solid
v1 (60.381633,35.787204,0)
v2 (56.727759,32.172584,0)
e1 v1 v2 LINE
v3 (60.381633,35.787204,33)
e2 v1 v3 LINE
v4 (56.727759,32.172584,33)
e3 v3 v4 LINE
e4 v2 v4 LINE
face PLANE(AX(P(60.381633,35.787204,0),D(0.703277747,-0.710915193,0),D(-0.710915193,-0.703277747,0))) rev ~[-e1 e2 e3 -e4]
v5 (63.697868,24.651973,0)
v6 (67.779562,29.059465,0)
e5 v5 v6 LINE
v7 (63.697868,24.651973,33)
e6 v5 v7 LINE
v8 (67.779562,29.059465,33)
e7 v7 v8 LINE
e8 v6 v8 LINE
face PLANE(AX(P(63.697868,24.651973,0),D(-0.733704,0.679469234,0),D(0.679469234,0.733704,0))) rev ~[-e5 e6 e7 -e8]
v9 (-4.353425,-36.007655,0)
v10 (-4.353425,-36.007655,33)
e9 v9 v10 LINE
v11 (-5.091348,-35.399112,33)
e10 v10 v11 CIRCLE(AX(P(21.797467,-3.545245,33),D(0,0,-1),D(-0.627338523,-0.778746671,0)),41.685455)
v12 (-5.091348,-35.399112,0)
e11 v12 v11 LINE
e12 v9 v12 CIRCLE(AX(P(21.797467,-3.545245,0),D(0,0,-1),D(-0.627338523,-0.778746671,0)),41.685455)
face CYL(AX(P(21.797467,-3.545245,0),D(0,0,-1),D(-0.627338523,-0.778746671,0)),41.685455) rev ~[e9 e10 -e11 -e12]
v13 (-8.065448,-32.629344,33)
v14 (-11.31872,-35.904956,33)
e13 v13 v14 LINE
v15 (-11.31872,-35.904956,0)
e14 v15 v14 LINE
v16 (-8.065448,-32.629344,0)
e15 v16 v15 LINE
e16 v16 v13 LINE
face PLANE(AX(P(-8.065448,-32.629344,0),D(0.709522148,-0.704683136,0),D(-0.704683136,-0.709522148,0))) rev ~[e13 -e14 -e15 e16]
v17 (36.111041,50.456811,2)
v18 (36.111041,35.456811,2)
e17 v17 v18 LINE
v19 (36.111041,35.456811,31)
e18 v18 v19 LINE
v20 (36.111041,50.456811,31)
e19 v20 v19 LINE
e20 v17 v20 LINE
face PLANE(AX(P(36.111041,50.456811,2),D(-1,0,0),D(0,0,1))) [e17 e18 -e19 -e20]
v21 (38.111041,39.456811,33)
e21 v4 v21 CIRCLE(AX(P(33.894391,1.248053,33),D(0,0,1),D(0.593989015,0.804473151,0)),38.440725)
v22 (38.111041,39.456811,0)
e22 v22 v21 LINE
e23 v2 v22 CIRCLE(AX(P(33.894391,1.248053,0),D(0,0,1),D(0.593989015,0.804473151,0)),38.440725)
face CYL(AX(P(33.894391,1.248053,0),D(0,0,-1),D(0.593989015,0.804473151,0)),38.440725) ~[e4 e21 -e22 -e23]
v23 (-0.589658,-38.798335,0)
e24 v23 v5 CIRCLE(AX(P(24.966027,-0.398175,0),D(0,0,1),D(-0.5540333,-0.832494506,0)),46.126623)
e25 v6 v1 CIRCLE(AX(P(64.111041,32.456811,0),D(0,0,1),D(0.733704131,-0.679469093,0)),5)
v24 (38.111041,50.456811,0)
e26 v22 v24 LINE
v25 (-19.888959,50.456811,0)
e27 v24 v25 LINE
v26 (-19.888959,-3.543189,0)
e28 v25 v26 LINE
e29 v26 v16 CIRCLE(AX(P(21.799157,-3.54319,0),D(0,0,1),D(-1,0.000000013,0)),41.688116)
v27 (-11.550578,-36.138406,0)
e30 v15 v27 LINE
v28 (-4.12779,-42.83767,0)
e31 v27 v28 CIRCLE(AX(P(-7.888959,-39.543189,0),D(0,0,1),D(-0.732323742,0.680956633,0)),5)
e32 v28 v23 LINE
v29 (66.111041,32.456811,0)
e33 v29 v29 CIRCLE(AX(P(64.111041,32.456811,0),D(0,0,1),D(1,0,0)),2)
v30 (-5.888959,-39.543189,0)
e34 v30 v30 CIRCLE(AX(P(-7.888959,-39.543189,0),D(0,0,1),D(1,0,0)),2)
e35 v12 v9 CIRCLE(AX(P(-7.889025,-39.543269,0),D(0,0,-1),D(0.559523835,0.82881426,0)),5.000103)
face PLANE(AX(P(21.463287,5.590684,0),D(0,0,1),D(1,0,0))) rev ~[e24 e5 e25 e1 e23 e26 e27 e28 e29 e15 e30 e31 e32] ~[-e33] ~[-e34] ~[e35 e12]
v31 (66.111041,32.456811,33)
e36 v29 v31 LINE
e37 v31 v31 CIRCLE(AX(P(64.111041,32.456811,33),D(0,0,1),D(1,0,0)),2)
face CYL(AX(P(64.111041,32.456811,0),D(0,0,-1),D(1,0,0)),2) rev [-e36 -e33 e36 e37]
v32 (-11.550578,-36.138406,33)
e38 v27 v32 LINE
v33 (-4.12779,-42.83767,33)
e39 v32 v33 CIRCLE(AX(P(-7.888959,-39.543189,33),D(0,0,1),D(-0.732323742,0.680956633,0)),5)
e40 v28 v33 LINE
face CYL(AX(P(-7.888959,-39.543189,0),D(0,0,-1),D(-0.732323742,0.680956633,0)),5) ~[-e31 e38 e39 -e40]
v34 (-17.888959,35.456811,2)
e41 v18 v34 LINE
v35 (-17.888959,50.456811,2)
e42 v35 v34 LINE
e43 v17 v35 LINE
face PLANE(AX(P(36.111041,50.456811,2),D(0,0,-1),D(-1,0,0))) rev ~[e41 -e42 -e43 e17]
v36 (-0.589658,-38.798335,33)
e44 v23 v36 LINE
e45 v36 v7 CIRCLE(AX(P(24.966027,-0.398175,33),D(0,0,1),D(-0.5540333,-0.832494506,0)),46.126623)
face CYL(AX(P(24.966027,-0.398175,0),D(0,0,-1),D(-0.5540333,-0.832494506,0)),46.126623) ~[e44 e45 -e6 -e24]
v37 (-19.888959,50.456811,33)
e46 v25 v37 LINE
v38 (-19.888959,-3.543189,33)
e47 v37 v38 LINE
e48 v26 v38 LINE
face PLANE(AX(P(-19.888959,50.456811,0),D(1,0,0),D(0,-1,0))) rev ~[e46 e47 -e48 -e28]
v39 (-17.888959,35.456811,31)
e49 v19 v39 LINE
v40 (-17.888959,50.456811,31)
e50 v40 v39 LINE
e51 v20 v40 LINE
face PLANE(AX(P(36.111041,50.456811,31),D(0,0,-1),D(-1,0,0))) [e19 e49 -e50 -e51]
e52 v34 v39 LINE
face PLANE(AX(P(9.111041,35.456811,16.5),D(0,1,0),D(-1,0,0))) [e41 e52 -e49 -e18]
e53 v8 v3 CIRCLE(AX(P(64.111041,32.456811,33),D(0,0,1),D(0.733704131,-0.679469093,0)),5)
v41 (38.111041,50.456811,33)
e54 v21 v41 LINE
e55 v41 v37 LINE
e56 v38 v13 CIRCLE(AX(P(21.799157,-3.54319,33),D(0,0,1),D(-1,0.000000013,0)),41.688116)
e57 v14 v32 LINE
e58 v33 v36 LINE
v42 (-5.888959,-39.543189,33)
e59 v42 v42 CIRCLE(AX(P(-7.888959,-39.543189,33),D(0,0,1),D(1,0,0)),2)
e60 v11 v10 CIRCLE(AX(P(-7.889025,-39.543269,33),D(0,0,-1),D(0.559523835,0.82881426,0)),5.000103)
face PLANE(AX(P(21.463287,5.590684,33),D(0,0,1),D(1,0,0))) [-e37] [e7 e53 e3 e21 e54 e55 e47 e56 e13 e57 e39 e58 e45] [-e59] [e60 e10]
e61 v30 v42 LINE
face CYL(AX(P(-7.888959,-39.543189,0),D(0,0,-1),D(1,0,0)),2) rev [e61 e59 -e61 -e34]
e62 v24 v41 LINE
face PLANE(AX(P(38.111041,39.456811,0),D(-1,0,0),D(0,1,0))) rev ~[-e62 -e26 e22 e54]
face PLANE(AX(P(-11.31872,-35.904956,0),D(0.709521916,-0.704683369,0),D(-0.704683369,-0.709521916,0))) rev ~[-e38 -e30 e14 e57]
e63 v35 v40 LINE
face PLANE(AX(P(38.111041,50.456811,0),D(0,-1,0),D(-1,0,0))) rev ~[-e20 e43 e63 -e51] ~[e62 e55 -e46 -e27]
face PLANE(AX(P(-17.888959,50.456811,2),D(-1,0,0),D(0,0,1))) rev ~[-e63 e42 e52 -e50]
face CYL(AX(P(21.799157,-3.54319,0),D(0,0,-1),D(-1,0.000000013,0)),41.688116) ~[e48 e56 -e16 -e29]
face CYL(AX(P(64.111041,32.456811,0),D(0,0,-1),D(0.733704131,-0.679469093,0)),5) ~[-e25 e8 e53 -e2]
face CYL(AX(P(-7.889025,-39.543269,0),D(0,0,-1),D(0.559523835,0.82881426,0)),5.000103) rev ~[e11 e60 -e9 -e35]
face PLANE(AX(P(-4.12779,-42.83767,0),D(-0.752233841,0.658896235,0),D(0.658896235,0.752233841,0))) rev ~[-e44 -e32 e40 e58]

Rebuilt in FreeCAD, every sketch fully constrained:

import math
import FreeCAD as App
import Part
import Sketcher

doc = App.newDocument("Part")
params = doc.addObject("Spreadsheet::Sheet", "Params")
for row, (alias, value) in enumerate([
    ("sketch1_diameter", "4 mm"),
    ("sketch1_radius", "5 mm"),
    ("sketch1_width", "58 mm"),
    ("sketch1_height", "54 mm"),
    ("sketch1_height2", "11 mm"),
    ("pad1_length", "33 mm"),
    ("sketch2_width", "54 mm"),
    ("sketch2_height", "29 mm"),
    ("pocket1_length", "15 mm"),
], start=1):
    params.set(f"A{row}", alias)
    params.set(f"B{row}", "=" + value)
    params.setAlias(f"B{row}", alias)

body = doc.addObject("PartDesign::Body", "Body")

# Sketch on XY plane
sketch1 = body.newObject("Sketcher::SketchObject", "Sketch")
sketch1.AttachmentSupport = (doc.getObject("XY_Plane"), [""])
sketch1.MapMode = "FlatFace"
sketch1.addGeometry(Part.LineSegment(App.Vector(38.111041, 50.456811, 0), App.Vector(-19.888959, 50.456811, 0)), False)
sketch1.addGeometry(Part.LineSegment(App.Vector(-19.888959, 50.456811, 0), App.Vector(-19.888959, -3.543189, 0)), False)
sketch1.addGeometry(Part.ArcOfCircle(Part.Circle(App.Vector(21.799157, -3.54319, 0), App.Vector(0, 0, 1), 41.688116), math.radians(179.999999), math.radians(224.243448)), False)
sketch1.addGeometry(Part.LineSegment(App.Vector(-8.065448, -32.629344, 0), App.Vector(-11.31872, -35.904956, 0)), False)
sketch1.addGeometry(Part.LineSegment(App.Vector(-11.31872, -35.904956, 0), App.Vector(-11.550578, -36.138406, 0)), False)
sketch1.addGeometry(Part.ArcOfCircle(Part.Circle(App.Vector(-7.888959, -39.543189, 0), App.Vector(0, 0, 1), 5), math.radians(137.081557), math.radians(318.784256)), False)
sketch1.addGeometry(Part.LineSegment(App.Vector(-4.12779, -42.83767, 0), App.Vector(-0.589658, -38.798335, 0)), False)
sketch1.addGeometry(Part.ArcOfCircle(Part.Circle(App.Vector(24.966027, -0.398175, 0), App.Vector(0, 0, 1), 46.126623), math.radians(-123.644157), math.radians(32.893113)), False)
sketch1.addGeometry(Part.LineSegment(App.Vector(63.697868, 24.651973, 0), App.Vector(67.779562, 29.059465, 0)), False)
sketch1.addGeometry(Part.ArcOfCircle(Part.Circle(App.Vector(64.111041, 32.456811, 0), App.Vector(0, 0, 1), 5), math.radians(-42.80217), math.radians(138.234874)), False)
sketch1.addGeometry(Part.LineSegment(App.Vector(60.381633, 35.787204, 0), App.Vector(56.727759, 32.172584, 0)), False)
sketch1.addGeometry(Part.ArcOfCircle(Part.Circle(App.Vector(33.894391, 1.248053, 0), App.Vector(0, 0, 1), 38.440725), math.radians(53.559405), math.radians(83.702423)), False)
sketch1.addGeometry(Part.LineSegment(App.Vector(38.111041, 39.456811, 0), App.Vector(38.111041, 50.456811, 0)), False)
sketch1.addGeometry(Part.Circle(App.Vector(-7.888959, -39.543189, 0), App.Vector(0, 0, 1), 2), False)
sketch1.addGeometry(Part.ArcOfCircle(Part.Circle(App.Vector(21.797467, -3.545245, 0), App.Vector(0, 0, 1), 41.685455), math.radians(-130.168726), math.radians(-128.854035)), False)
sketch1.addGeometry(Part.ArcOfCircle(Part.Circle(App.Vector(-7.889025, -39.543269, 0), App.Vector(0, 0, 1), 5.000103), math.radians(45.000112), math.radians(55.977126)), False)
sketch1.addGeometry(Part.Circle(App.Vector(64.111041, 32.456811, 0), App.Vector(0, 0, 1), 2), False)
sketch1.addConstraint(Sketcher.Constraint("Coincident", 0, 2, 1, 1))
sketch1.addConstraint(Sketcher.Constraint("Tangent", 1, 2, 2, 1))
sketch1.addConstraint(Sketcher.Constraint("Coincident", 2, 2, 3, 1))
sketch1.addConstraint(Sketcher.Constraint("Coincident", 3, 2, 4, 1))
sketch1.addConstraint(Sketcher.Constraint("Coincident", 4, 2, 5, 1))
sketch1.addConstraint(Sketcher.Constraint("Tangent", 5, 2, 6, 1))
sketch1.addConstraint(Sketcher.Constraint("Coincident", 6, 2, 7, 1))
sketch1.addConstraint(Sketcher.Constraint("Coincident", 7, 2, 8, 1))
sketch1.addConstraint(Sketcher.Constraint("Tangent", 8, 2, 9, 1))
sketch1.addConstraint(Sketcher.Constraint("Coincident", 9, 2, 10, 1))
sketch1.addConstraint(Sketcher.Constraint("Coincident", 10, 2, 11, 1))
sketch1.addConstraint(Sketcher.Constraint("Coincident", 11, 2, 12, 1))
sketch1.addConstraint(Sketcher.Constraint("Coincident", 12, 2, 0, 1))
sketch1.addConstraint(Sketcher.Constraint("Coincident", 14, 1, 15, 2))
sketch1.addConstraint(Sketcher.Constraint("Coincident", 15, 1, 14, 2))
sketch1.addConstraint(Sketcher.Constraint("Horizontal", 0))
sketch1.addConstraint(Sketcher.Constraint("Vertical", 1))
sketch1.addConstraint(Sketcher.Constraint("Vertical", 12))
sketch1.addConstraint(Sketcher.Constraint("Coincident", 13, 3, 5, 3))
sketch1.addConstraint(Sketcher.Constraint("Coincident", 16, 3, 9, 3))
sketch1.addConstraint(Sketcher.Constraint("Equal", 5, 9))
sketch1.addConstraint(Sketcher.Constraint("Equal", 13, 16))
sketch1.addConstraint(Sketcher.Constraint("Parallel", 3, 4))
sketch1.addConstraint(Sketcher.Constraint("Diameter", 13, 4.0))
sketch1.addConstraint(Sketcher.Constraint("Radius", 5, 5.0))
sketch1.addConstraint(Sketcher.Constraint("DistanceX", 0, 2, 0, 1, 58.0))
sketch1.addConstraint(Sketcher.Constraint("DistanceY", 1, 2, 1, 1, 54.0))
sketch1.addConstraint(Sketcher.Constraint("DistanceY", 12, 1, 12, 2, 11.0))
sketch1.addConstraint(Sketcher.Constraint("DistanceY", 5, 3, 2, 3, 36.0))
sketch1.addConstraint(Sketcher.Constraint("DistanceY", 2, 3, 9, 3, 36.0))
sketch1.addConstraint(Sketcher.Constraint("DistanceX", 5, 3, 9, 3, 72.0))
sketch1.addConstraint(Sketcher.Constraint("DistanceX", 0, 2, 16, 3, 84.0))
sketch1.addConstraint(Sketcher.Constraint("Radius", 2, 41.688116))
sketch1.addConstraint(Sketcher.Constraint("Radius", 7, 46.126623))
sketch1.addConstraint(Sketcher.Constraint("Radius", 11, 38.440725))
sketch1.addConstraint(Sketcher.Constraint("Radius", 14, 41.685455))
sketch1.addConstraint(Sketcher.Constraint("Radius", 15, 5.000103))
sketch1.addConstraint(Sketcher.Constraint("DistanceY", 2, 2, 14, 3, 29.084099))
sketch1.addConstraint(Sketcher.Constraint("DistanceY", 5, 2, 15, 3, 3.294401))
sketch1.addConstraint(Sketcher.Constraint("DistanceX", 13, 3, 6, 2, 7.299301))
sketch1.addConstraint(Sketcher.Constraint("DistanceX", 2, 2, 14, 1, 2.9741))
sketch1.addConstraint(Sketcher.Constraint("DistanceX", 15, 3, 15, 1, 3.5356))
sketch1.addConstraint(Sketcher.Constraint("Distance", 8, 6.00718))
sketch1.addConstraint(Sketcher.Constraint("DistanceY", 2, 3, -1, 1, 3.54319))
sketch1.addConstraint(Sketcher.Constraint("DistanceX", 5, 3, -1, 1, 7.888959))
sketch1.addConstraint(Sketcher.Constraint("DistanceX", -1, 1, 11, 3, 33.894391))
sketch1.addConstraint(Sketcher.Constraint("DistanceY", 15, 3, -1, 1, 39.543269))
sketch1.addConstraint(Sketcher.Constraint("DistanceX", 2, 2, -1, 1, 8.065448))
sketch1.addConstraint(Sketcher.Constraint("DistanceX", 3, 2, -1, 1, 11.31872))
sketch1.addConstraint(Sketcher.Constraint("DistanceX", -1, 1, 8, 2, 67.779562))
sketch1.addConstraint(Sketcher.Constraint("DistanceX", -1, 1, 10, 2, 56.727759))
sketch1.addConstraint(Sketcher.Constraint("DistanceY", 4, 2, 3, 2, 0.23345))
sketch1.addConstraint(Sketcher.Constraint("DistanceX", 9, 2, 9, 3, 3.729408))
sketch1.setExpression("Constraints[23]", "Params.sketch1_diameter")
sketch1.setExpression("Constraints[24]", "Params.sketch1_radius")
sketch1.setExpression("Constraints[25]", "Params.sketch1_width")
sketch1.setExpression("Constraints[26]", "Params.sketch1_height")
sketch1.setExpression("Constraints[27]", "Params.sketch1_height2")
pad1 = body.newObject("PartDesign::Pad", "Pad")
pad1.Profile = sketch1
pad1.setExpression("Length", "Params.pad1_length")

# Sketch on XZ plane
sketch2 = body.newObject("Sketcher::SketchObject", "Sketch001")
sketch2.AttachmentSupport = (doc.getObject("XZ_Plane"), [""])
sketch2.MapMode = "FlatFace"
sketch2.AttachmentOffset = App.Placement(App.Vector(0, 0, -50.456811), App.Rotation())
sketch2.addGeometry(Part.LineSegment(App.Vector(36.111041, 31, 0), App.Vector(36.111041, 2, 0)), False)
sketch2.addGeometry(Part.LineSegment(App.Vector(36.111041, 2, 0), App.Vector(-17.888959, 2, 0)), False)
sketch2.addGeometry(Part.LineSegment(App.Vector(-17.888959, 2, 0), App.Vector(-17.888959, 31, 0)), False)
sketch2.addGeometry(Part.LineSegment(App.Vector(-17.888959, 31, 0), App.Vector(36.111041, 31, 0)), False)
sketch2.addConstraint(Sketcher.Constraint("Coincident", 0, 2, 1, 1))
sketch2.addConstraint(Sketcher.Constraint("Coincident", 1, 2, 2, 1))
sketch2.addConstraint(Sketcher.Constraint("Coincident", 2, 2, 3, 1))
sketch2.addConstraint(Sketcher.Constraint("Coincident", 3, 2, 0, 1))
sketch2.addConstraint(Sketcher.Constraint("Vertical", 0))
sketch2.addConstraint(Sketcher.Constraint("Horizontal", 1))
sketch2.addConstraint(Sketcher.Constraint("Vertical", 2))
sketch2.addConstraint(Sketcher.Constraint("Horizontal", 3))
sketch2.addConstraint(Sketcher.Constraint("DistanceX", 1, 2, 1, 1, 54.0))
sketch2.addConstraint(Sketcher.Constraint("DistanceY", 0, 2, 0, 1, 29.0))
sketch2.addConstraint(Sketcher.Constraint("DistanceY", -1, 1, 0, 2, 2.0))
sketch2.addConstraint(Sketcher.Constraint("DistanceX", -1, 1, 0, 2, 36.111041))
sketch2.setExpression("Constraints[8]", "Params.sketch2_width")
sketch2.setExpression("Constraints[9]", "Params.sketch2_height")
pocket1 = body.newObject("PartDesign::Pocket", "Pocket")
pocket1.Profile = sketch2
pocket1.setExpression("Length", "Params.pocket1_length")
pocket1.Reversed = True

doc.recompute()
